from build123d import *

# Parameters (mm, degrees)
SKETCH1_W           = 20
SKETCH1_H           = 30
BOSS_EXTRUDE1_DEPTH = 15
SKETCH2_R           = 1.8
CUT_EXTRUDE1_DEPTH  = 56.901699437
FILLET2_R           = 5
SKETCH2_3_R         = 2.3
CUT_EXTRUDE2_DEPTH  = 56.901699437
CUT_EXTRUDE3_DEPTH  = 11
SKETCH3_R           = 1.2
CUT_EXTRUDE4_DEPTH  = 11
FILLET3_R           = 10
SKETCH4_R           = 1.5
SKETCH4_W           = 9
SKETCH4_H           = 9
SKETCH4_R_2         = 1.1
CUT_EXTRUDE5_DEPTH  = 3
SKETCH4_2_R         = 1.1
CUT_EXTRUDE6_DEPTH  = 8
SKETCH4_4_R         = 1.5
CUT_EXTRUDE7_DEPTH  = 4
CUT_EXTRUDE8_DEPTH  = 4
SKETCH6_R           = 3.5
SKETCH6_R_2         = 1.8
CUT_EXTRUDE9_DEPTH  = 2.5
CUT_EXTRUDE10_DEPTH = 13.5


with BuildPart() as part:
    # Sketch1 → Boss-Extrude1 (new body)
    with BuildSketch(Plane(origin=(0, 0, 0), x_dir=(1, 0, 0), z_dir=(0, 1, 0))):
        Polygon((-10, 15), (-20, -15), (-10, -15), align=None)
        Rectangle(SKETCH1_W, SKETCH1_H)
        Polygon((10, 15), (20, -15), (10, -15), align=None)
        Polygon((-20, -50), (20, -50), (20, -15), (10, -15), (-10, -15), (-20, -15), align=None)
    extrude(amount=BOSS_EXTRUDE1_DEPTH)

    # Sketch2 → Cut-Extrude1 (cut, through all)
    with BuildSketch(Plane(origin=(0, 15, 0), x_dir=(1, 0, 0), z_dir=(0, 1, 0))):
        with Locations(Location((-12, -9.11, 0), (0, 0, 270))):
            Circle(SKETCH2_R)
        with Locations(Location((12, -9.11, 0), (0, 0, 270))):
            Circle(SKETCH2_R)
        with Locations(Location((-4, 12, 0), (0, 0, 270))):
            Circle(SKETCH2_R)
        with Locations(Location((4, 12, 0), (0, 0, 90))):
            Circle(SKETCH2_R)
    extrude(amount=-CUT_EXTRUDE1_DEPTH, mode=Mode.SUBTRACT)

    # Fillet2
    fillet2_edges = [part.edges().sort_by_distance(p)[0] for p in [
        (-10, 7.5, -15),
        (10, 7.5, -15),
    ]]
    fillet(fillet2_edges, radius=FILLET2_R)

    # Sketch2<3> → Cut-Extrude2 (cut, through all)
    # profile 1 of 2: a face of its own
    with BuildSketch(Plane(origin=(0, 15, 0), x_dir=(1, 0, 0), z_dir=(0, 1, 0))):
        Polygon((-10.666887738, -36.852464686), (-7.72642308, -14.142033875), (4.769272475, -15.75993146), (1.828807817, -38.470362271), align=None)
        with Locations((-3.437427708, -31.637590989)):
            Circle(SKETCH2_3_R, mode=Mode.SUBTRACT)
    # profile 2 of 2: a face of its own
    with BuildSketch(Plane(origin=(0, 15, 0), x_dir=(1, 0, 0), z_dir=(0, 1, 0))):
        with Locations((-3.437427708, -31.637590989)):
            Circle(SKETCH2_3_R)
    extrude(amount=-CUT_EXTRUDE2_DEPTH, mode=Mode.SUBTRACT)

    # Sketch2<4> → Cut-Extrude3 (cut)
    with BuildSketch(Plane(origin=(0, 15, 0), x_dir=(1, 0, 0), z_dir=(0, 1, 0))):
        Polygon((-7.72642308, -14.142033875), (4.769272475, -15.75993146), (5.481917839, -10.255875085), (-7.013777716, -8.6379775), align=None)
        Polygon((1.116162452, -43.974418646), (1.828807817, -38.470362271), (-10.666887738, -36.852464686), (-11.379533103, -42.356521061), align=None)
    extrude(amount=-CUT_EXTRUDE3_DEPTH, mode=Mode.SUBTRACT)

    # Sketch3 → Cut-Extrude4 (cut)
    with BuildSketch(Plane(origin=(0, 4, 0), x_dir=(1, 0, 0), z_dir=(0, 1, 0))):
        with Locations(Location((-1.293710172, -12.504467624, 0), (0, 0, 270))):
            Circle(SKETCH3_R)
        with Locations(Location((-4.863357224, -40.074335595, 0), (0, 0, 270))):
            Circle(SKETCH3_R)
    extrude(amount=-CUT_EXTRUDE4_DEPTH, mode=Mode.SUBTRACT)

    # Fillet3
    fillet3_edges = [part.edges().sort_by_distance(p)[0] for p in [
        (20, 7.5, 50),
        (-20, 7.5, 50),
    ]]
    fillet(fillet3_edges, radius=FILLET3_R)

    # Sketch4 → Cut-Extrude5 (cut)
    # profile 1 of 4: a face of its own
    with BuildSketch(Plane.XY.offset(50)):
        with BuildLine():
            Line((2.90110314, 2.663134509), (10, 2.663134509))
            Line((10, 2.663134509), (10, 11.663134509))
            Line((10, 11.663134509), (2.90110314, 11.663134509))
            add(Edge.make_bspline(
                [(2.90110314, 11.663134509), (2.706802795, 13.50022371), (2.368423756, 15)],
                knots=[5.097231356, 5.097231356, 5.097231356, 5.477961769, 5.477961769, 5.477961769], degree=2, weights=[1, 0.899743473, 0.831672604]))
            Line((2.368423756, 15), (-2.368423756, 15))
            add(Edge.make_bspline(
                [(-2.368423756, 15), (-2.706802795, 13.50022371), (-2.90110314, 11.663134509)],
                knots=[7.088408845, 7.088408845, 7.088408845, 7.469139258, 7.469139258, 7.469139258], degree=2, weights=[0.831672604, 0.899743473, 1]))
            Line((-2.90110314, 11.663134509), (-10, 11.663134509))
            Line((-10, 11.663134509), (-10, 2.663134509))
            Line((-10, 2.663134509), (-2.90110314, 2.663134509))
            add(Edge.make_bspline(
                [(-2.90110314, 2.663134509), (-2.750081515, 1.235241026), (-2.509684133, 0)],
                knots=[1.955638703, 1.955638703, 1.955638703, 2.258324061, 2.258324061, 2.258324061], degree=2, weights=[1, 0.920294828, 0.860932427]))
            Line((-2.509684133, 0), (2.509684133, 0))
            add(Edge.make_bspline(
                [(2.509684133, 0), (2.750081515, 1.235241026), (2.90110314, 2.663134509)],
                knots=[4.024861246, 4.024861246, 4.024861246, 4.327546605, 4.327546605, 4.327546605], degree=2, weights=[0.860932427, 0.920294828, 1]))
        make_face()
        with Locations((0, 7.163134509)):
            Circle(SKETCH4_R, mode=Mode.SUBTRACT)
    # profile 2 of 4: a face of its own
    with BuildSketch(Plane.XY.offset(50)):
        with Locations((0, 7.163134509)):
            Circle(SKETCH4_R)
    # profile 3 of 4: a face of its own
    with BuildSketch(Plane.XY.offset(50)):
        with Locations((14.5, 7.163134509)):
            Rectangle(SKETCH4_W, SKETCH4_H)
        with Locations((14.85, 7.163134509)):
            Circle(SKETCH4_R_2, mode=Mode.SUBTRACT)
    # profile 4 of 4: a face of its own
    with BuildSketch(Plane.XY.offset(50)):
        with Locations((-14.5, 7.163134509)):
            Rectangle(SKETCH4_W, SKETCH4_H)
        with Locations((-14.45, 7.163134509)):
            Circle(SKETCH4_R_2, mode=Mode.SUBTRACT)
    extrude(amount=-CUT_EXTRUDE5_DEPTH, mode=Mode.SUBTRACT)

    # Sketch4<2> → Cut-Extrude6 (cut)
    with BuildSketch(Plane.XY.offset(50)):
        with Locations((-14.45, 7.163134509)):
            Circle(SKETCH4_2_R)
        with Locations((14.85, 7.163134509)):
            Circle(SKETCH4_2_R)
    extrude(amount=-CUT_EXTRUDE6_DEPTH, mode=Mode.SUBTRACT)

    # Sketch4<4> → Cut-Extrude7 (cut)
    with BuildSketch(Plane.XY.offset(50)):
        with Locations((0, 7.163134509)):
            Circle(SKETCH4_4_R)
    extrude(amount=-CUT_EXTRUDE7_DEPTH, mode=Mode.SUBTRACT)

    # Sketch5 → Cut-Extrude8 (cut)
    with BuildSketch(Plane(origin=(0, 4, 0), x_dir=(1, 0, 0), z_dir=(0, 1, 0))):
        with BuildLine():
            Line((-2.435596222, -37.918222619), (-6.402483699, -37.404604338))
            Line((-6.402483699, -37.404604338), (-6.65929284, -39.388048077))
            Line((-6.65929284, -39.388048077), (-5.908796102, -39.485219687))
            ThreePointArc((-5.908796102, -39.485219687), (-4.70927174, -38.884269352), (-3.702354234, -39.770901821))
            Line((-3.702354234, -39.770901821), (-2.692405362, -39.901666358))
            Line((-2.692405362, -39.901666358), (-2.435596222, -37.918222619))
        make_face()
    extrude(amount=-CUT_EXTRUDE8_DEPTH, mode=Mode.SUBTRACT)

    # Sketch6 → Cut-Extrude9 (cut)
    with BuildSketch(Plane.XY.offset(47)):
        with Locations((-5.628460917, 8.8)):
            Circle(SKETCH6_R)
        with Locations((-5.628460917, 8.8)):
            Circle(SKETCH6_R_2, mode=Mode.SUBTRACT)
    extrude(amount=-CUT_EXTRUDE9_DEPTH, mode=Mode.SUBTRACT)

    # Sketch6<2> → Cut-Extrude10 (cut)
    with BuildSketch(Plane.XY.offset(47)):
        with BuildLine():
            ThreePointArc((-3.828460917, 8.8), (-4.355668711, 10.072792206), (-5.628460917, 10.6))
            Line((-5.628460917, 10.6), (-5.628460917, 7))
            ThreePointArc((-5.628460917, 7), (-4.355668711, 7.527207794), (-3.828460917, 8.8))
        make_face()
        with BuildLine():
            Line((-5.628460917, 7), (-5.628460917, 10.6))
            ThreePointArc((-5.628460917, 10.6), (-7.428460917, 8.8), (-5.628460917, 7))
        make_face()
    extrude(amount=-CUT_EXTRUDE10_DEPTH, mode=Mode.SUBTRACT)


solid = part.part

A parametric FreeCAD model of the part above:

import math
import FreeCAD as App
import Part
import Sketcher
from FreeCAD import Vector


def edges_at(feature, points):
    """Names of the edges that pass closest to the given points."""
    edges = feature.Shape.Edges
    near = lambda p: min(range(len(edges)), key=lambda i: edges[i].distToShape(Part.Vertex(*p))[0])
    return sorted({f"Edge{near(p) + 1}" for p in points})


def add_polygon(sketch, points):
    """Adds a closed chain of lines whose ends are joined by coincident constraints."""
    first, n = sketch.GeometryCount, len(points)
    for a, b in zip(points, points[1:] + points[:1]):
        sketch.addGeometry(Part.LineSegment(App.Vector(*a, 0), App.Vector(*b, 0)), False)
    for i in range(n):
        sketch.addConstraint(Sketcher.Constraint("Coincident", first + i, 2, first + (i + 1) % n, 1))

doc = App.newDocument("Part")
body = doc.addObject("PartDesign::Body", "Body")

# Sketch on XZ plane
sketch1 = body.newObject("Sketcher::SketchObject", "Sketch")
sketch1.AttachmentSupport = (doc.getObject("XZ_Plane"), [""])
sketch1.MapMode = "FlatFace"
add_polygon(sketch1, [(-10, -15), (-20, 15), (-20, 50), (20, 50), (20, 15), (10, -15)])  # lines 0-5
sketch1.addConstraint([
    Sketcher.Constraint("Vertical", 1),
    Sketcher.Constraint("Horizontal", 2),
    Sketcher.Constraint("Vertical", 3),
    Sketcher.Constraint("Horizontal", 5),
    Sketcher.Constraint("Symmetric", 0, 2, 3, 2, -2),
    Sketcher.Constraint("Equal", 0, 4),
    Sketcher.Constraint("DistanceX", 2, 1, 2, 2, 40.0),
    Sketcher.Constraint("DistanceX", 5, 2, 5, 1, 20.0),
    Sketcher.Constraint("DistanceY", 1, 1, 1, 2, 35.0),
    Sketcher.Constraint("DistanceY", -1, 1, 0, 2, 15.0),
    Sketcher.Constraint("DistanceY", 4, 2, -1, 1, 15.0),
])
pad1 = body.newObject("PartDesign::Pad", "Pad")
pad1.Profile = sketch1
pad1.Length = 15
pad1.Reversed = True

# Sketch on XZ plane
sketch2 = body.newObject("Sketcher::SketchObject", "Sketch001")
sketch2.AttachmentSupport = (doc.getObject("XZ_Plane"), [""])
sketch2.MapMode = "FlatFace"
sketch2.AttachmentOffset = App.Placement(Vector(0, 0, -15), App.Rotation())
sketch2.addGeometry([
    Part.Circle(Vector(-12, 9.11, 0), Vector(0, 0, 1), 1.8),
    Part.Circle(Vector(12, 9.11, 0), Vector(0, 0, 1), 1.8),
    Part.Circle(Vector(-4, -12, 0), Vector(0, 0, 1), 1.8),
    Part.Circle(Vector(4, -12, 0), Vector(0, 0, 1), 1.8),
], False)
sketch2.addConstraint([
    Sketcher.Constraint("Equal", 0, 1),
    Sketcher.Constraint("Equal", 1, 2),
    Sketcher.Constraint("Equal", 2, 3),
    Sketcher.Constraint("Symmetric", 0, 3, 1, 3, -2),
    Sketcher.Constraint("Symmetric", 2, 3, 3, 3, -2),
    Sketcher.Constraint("Diameter", 0, 3.6),
    Sketcher.Constraint("DistanceX", 0, 3, -1, 1, 12.0),
    Sketcher.Constraint("DistanceX", 2, 3, -1, 1, 4.0),
    Sketcher.Constraint("DistanceY", 2, 3, -1, 1, 12.0),
    Sketcher.Constraint("DistanceY", -1, 1, 0, 3, 9.11),
])
pocket1 = body.newObject("PartDesign::Pocket", "Pocket")
pocket1.Profile = sketch2
pocket1.Type = "ThroughAll"
pocket1.Reversed = True
doc.recompute()

fillet = body.newObject("PartDesign::Fillet", "Fillet")
fillet.Base = (pocket1, edges_at(pocket1, [(-10, 7.5, -15), (10, 7.5, -15)]))
fillet.Radius = 5

# Sketch on XZ plane
sketch3 = body.newObject("Sketcher::SketchObject", "Sketch002")
sketch3.AttachmentSupport = (doc.getObject("XZ_Plane"), [""])
sketch3.MapMode = "FlatFace"
sketch3.AttachmentOffset = App.Placement(Vector(0, 0, -15), App.Rotation())
add_polygon(sketch3, [(-7.726423, 14.142034), (-10.666888, 36.852465), (1.828808, 38.470362), (4.769272, 15.759931)])  # lines 0-3
sketch3.addConstraint([
    Sketcher.Constraint("Perpendicular", 0, 1),
    Sketcher.Constraint("Perpendicular", 1, 2),
    Sketcher.Constraint("Perpendicular", 2, 3),
    Sketcher.Constraint("Distance", 0, 22.9),
    Sketcher.Constraint("Distance", 1, 12.6),
    Sketcher.Constraint("DistanceY", -1, 1, 2, 2, 15.759931),
    Sketcher.Constraint("DistanceY", 2, 2, 1, 2, 22.710431),
    Sketcher.Constraint("DistanceX", 0, 2, -1, 1, 10.666888),
])
pocket2 = body.newObject("PartDesign::Pocket", "Pocket001")
pocket2.Profile = sketch3
pocket2.Length = 56.901699
pocket2.Reversed = True

# Sketch on XZ plane
sketch4 = body.newObject("Sketcher::SketchObject", "Sketch003")
sketch4.AttachmentSupport = (doc.getObject("XZ_Plane"), [""])
sketch4.MapMode = "FlatFace"
sketch4.AttachmentOffset = App.Placement(Vector(0, 0, -15), App.Rotation())
add_polygon(sketch4, [(-7.726423, 14.142034), (4.769272, 15.759931), (5.481918, 10.255875), (-7.013778, 8.637977)])  # lines 0-3
add_polygon(sketch4, [(1.116162, 43.974419), (1.828808, 38.470362), (-10.666888, 36.852465), (-11.379533, 42.356521)])  # lines 4-7
sketch4.addConstraint([
    Sketcher.Constraint("Perpendicular", 0, 1),
    Sketcher.Constraint("Perpendicular", 1, 2),
    Sketcher.Constraint("Perpendicular", 2, 3),
    Sketcher.Constraint("Parallel", 3, 4),
    Sketcher.Constraint("Perpendicular", 4, 5),
    Sketcher.Constraint("Perpendicular", 5, 6),
    Sketcher.Constraint("Perpendicular", 6, 7),
    Sketcher.Constraint("Equal", 3, 4),
    Sketcher.Constraint("Equal", 2, 5),
    Sketcher.Constraint("Distance", 0, 12.6),
    Sketcher.Constraint("Distance", 1, 5.55),
    Sketcher.Constraint("DistanceY", -1, 1, 0, 2, 15.759931),
    Sketcher.Constraint("DistanceY", -1, 1, 6, 2, 42.356521),
    Sketcher.Constraint("DistanceY", -1, 1, 7, 2, 43.974419),
    Sketcher.Constraint("DistanceX", 3, 2, 4, 2, 9.555231),
    Sketcher.Constraint("DistanceX", -1, 1, 0, 2, 4.769272),
])
pocket3 = body.newObject("PartDesign::Pocket", "Pocket002")
pocket3.Profile = sketch4
pocket3.Length = 11
pocket3.Reversed = True

# Sketch on XZ plane
sketch5 = body.newObject("Sketcher::SketchObject", "Sketch004")
sketch5.AttachmentSupport = (doc.getObject("XZ_Plane"), [""])
sketch5.MapMode = "FlatFace"
sketch5.AttachmentOffset = App.Placement(Vector(0, 0, -4), App.Rotation())
sketch5.addGeometry([
    Part.Circle(Vector(-1.29371, 12.504468, 0), Vector(0, 0, 1), 1.2),
    Part.Circle(Vector(-4.863357, 40.074336, 0), Vector(0, 0, 1), 1.2),
], False)
sketch5.addConstraint([
    Sketcher.Constraint("Equal", 0, 1),
    Sketcher.Constraint("Diameter", 0, 2.4),
    Sketcher.Constraint("DistanceX", 0, 3, -1, 1, 1.29371),
    Sketcher.Constraint("DistanceY", -1, 1, 0, 3, 12.504468),
    Sketcher.Constraint("DistanceX", 1, 3, -1, 1, 4.863357),
    Sketcher.Constraint("DistanceY", -1, 1, 1, 3, 40.074336),
])
pocket4 = body.newObject("PartDesign::Pocket", "Pocket003")
pocket4.Profile = sketch5
pocket4.Length = 11
pocket4.Reversed = True
doc.recompute()

fillet2 = body.newObject("PartDesign::Fillet", "Fillet001")
fillet2.Base = (pocket4, edges_at(pocket4, [(20, 7.5, 50), (-20, 7.5, 50)]))
fillet2.Radius = 10

# Sketch on XY plane
sketch6 = body.newObject("Sketcher::SketchObject", "Sketch005")
sketch6.AttachmentSupport = (doc.getObject("XY_Plane"), [""])
sketch6.MapMode = "FlatFace"
sketch6.AttachmentOffset = App.Placement(Vector(0, 0, 50), App.Rotation())
sketch6.addGeometry([
    Part.LineSegment(Vector(2.901103, 2.663135, 0), Vector(19, 2.663135, 0)),  # 0
    Part.LineSegment(Vector(19, 2.663135, 0), Vector(19, 11.663135, 0)),  # 1
    Part.LineSegment(Vector(19, 11.663135, 0), Vector(2.901103, 11.663135, 0)),  # 2
    Part.BSplineCurve([Vector(2.901103, 11.663135, 0), Vector(2.706803, 13.500224, 0), Vector(2.368424, 15, 0)], [3, 3], [5.097231356, 5.477961769], False, 2, [1, 0.899743473, 0.831672604], False),  # 3
    Part.LineSegment(Vector(2.368424, 15, 0), Vector(-2.368424, 15, 0)),  # 4
    Part.BSplineCurve([Vector(-2.368424, 15, 0), Vector(-2.706803, 13.500224, 0), Vector(-2.901103, 11.663135, 0)], [3, 3], [7.088408845, 7.469139258], False, 2, [0.831672604, 0.899743473, 1], False),  # 5
    Part.LineSegment(Vector(-2.901103, 11.663135, 0), Vector(-19, 11.663135, 0)),  # 6
    Part.LineSegment(Vector(-19, 11.663135, 0), Vector(-19, 2.663135, 0)),  # 7
    Part.LineSegment(Vector(-19, 2.663135, 0), Vector(-2.901103, 2.663135, 0)),  # 8
    Part.BSplineCurve([Vector(-2.901103, 2.663135, 0), Vector(-2.750082, 1.235241, 0), Vector(-2.509684, 0, 0)], [3, 3], [1.955638703, 2.258324061], False, 2, [1, 0.920294828, 0.860932427], False),  # 9
    Part.LineSegment(Vector(-2.509684, 0, 0), Vector(2.509684, 0, 0)),  # 10
    Part.BSplineCurve([Vector(2.509684, 0, 0), Vector(2.750082, 1.235241, 0), Vector(2.901103, 2.663135, 0)], [3, 3], [4.024861246, 4.327546605], False, 2, [0.860932427, 0.920294828, 1], False),  # 11
    Part.Circle(Vector(14.85, 7.163135, 0), Vector(0, 0, 1), 1.1),  # 12
    Part.Circle(Vector(-14.45, 7.163135, 0), Vector(0, 0, 1), 1.1),  # 13
], False)
sketch6.addConstraint([
    Sketcher.Constraint("Block", 3),
    Sketcher.Constraint("Block", 5),
    Sketcher.Constraint("Block", 9),
    Sketcher.Constraint("Block", 11),
    Sketcher.Constraint("Coincident", 0, 2, 1, 1),
    Sketcher.Constraint("Coincident", 1, 2, 2, 1),
    Sketcher.Constraint("Coincident", 2, 2, 3, 1),
    Sketcher.Constraint("Coincident", 3, 2, 4, 1),
    Sketcher.Constraint("Coincident", 4, 2, 5, 1),
    Sketcher.Constraint("Coincident", 5, 2, 6, 1),
    Sketcher.Constraint("Coincident", 6, 2, 7, 1),
    Sketcher.Constraint("Coincident", 7, 2, 8, 1),
    Sketcher.Constraint("Coincident", 8, 2, 9, 1),
    Sketcher.Constraint("Coincident", 9, 2, 10, 1),
    Sketcher.Constraint("Coincident", 10, 2, 11, 1),
    Sketcher.Constraint("Coincident", 11, 2, 0, 1),
    Sketcher.Constraint("Horizontal", 0),
    Sketcher.Constraint("Vertical", 1),
    Sketcher.Constraint("Horizontal", 2),
    Sketcher.Constraint("Horizontal", 6),
    Sketcher.Constraint("Vertical", 7),
    Sketcher.Constraint("Horizontal", 8),
    Sketcher.Constraint("Equal", 12, 13),
    Sketcher.Constraint("Horizontal", 12, 3, 13, 3),
    Sketcher.Constraint("Equal", 2, 6),
    Sketcher.Constraint("Diameter", 12, 2.2),
    Sketcher.Constraint("DistanceX", -1, 1, 0, 2, 19.0),
    Sketcher.Constraint("DistanceX", 13, 3, 12, 3, 29.3),
    Sketcher.Constraint("DistanceY", 0, 2, 12, 3, 4.5),
    Sketcher.Constraint("DistanceX", -1, 1, 12, 3, 14.85),
])
pocket5 = body.newObject("PartDesign::Pocket", "Pocket004")
pocket5.Profile = sketch6
pocket5.Length = 3

# Sketch on XY plane
sketch7 = body.newObject("Sketcher::SketchObject", "Sketch006")
sketch7.AttachmentSupport = (doc.getObject("XY_Plane"), [""])
sketch7.MapMode = "FlatFace"
sketch7.AttachmentOffset = App.Placement(Vector(0, 0, 50), App.Rotation())
sketch7.addGeometry([
    Part.Circle(Vector(-14.45, 7.163135, 0), Vector(0, 0, 1), 1.1),
    Part.Circle(Vector(14.85, 7.163135, 0), Vector(0, 0, 1), 1.1),
], False)
sketch7.addConstraint([
    Sketcher.Constraint("Equal", 0, 1),
    Sketcher.Constraint("Horizontal", 0, 3, 1, 3),
    Sketcher.Constraint("Diameter", 0, 2.2),
    Sketcher.Constraint("DistanceX", 0, 3, 1, 3, 29.3),
    Sketcher.Constraint("DistanceX", 0, 3, -1, 1, 14.45),
    Sketcher.Constraint("DistanceY", -1, 1, 0, 3, 7.163135),
])
pocket6 = body.newObject("PartDesign::Pocket", "Pocket005")
pocket6.Profile = sketch7
pocket6.Length = 8

# Sketch on XY plane
sketch8 = body.newObject("Sketcher::SketchObject", "Sketch007")
sketch8.AttachmentSupport = (doc.getObject("XY_Plane"), [""])
sketch8.MapMode = "FlatFace"
sketch8.AttachmentOffset = App.Placement(Vector(0, 0, 50), App.Rotation())
sketch8.addGeometry(Part.Circle(Vector(0, 7.163135, 0), Vector(0, 0, 1), 1.5), False)
sketch8.addConstraint([
    Sketcher.Constraint("PointOnObject", 0, 3, -2),
    Sketcher.Constraint("Diameter", 0, 3.0),
    Sketcher.Constraint("DistanceY", -1, 1, 0, 3, 7.163135),
])
pocket7 = body.newObject("PartDesign::Pocket", "Pocket006")
pocket7.Profile = sketch8
pocket7.Length = 4

# Sketch on XZ plane
sketch9 = body.newObject("Sketcher::SketchObject", "Sketch008")
sketch9.AttachmentSupport = (doc.getObject("XZ_Plane"), [""])
sketch9.MapMode = "FlatFace"
sketch9.AttachmentOffset = App.Placement(Vector(0, 0, -4), App.Rotation())
sketch9.addGeometry([
    Part.LineSegment(Vector(-2.435596, 37.918223, 0), Vector(-6.402484, 37.404604, 0)),  # 0
    Part.LineSegment(Vector(-6.402484, 37.404604, 0), Vector(-6.659293, 39.388048, 0)),  # 1
    Part.LineSegment(Vector(-6.659293, 39.388048, 0), Vector(-5.908796, 39.48522, 0)),  # 2
    Part.ArcOfCircle(Part.Circle(Vector(-4.863357, 40.074336, 0), Vector(0, 0, 1), 1.2), math.radians(-150.598279), math.radians(-14.646905)),  # 3
    Part.LineSegment(Vector(-3.702354, 39.770902, 0), Vector(-2.692405, 39.901666, 0)),  # 4
    Part.LineSegment(Vector(-2.692405, 39.901666, 0), Vector(-2.435596, 37.918223, 0)),  # 5
], False)
sketch9.addConstraint([
    Sketcher.Constraint("Coincident", 0, 2, 1, 1),
    Sketcher.Constraint("Coincident", 1, 2, 2, 1),
    Sketcher.Constraint("Coincident", 2, 2, 3, 1),
    Sketcher.Constraint("Coincident", 3, 2, 4, 1),
    Sketcher.Constraint("Coincident", 4, 2, 5, 1),
    Sketcher.Constraint("Coincident", 5, 2, 0, 1),
    Sketcher.Constraint("Perpendicular", 0, 1),
    Sketcher.Constraint("Perpendicular", 1, 2),
    Sketcher.Constraint("Parallel", 2, 4),
    Sketcher.Constraint("Perpendicular", 4, 5),
    Sketcher.Constraint("Equal", 1, 5),
    Sketcher.Constraint("Radius", 3, 1.2),
    Sketcher.Constraint("Distance", 0, 4.0),
    Sketcher.Constraint("Distance", 1, 2.0),
    Sketcher.Constraint("DistanceY", -1, 1, 3, 2, 39.770902),
    Sketcher.Constraint("DistanceX", 2, 2, 5, 2, 3.4732),
    Sketcher.Constraint("Distance", 2, 0.756761),
    Sketcher.Constraint("Distance", 4, 1.018379),
    Sketcher.Constraint("DistanceX", 3, 3, -1, 1, 4.863357),
])
pocket8 = body.newObject("PartDesign::Pocket", "Pocket007")
pocket8.Profile = sketch9
pocket8.Length = 4
pocket8.Reversed = True

# Sketch on XY plane
sketch10 = body.newObject("Sketcher::SketchObject", "Sketch009")
sketch10.AttachmentSupport = (doc.getObject("XY_Plane"), [""])
sketch10.MapMode = "FlatFace"
sketch10.AttachmentOffset = App.Placement(Vector(0, 0, 47), App.Rotation())
sketch10.addGeometry([
    Part.Circle(Vector(-5.628461, 8.8, 0), Vector(0, 0, 1), 3.5),
    Part.Circle(Vector(-5.628461, 8.8, 0), Vector(0, 0, 1), 1.8),
], False)
sketch10.addConstraint([
    Sketcher.Constraint("Coincident", 1, 3, 0, 3),
    Sketcher.Constraint("Diameter", 0, 7.0),
    Sketcher.Constraint("Diameter", 1, 3.6),
    Sketcher.Constraint("DistanceY", -1, 1, 0, 3, 8.8),
    Sketcher.Constraint("DistanceX", 0, 3, -1, 1, 5.628461),
])
pocket9 = body.newObject("PartDesign::Pocket", "Pocket008")
pocket9.Profile = sketch10
pocket9.Length = 2.5

# Sketch on XY plane
sketch11 = body.newObject("Sketcher::SketchObject", "Sketch010")
sketch11.AttachmentSupport = (doc.getObject("XY_Plane"), [""])
sketch11.MapMode = "FlatFace"
sketch11.AttachmentOffset = App.Placement(Vector(0, 0, 47), App.Rotation())
sketch11.addGeometry([
    Part.ArcOfCircle(Part.Circle(Vector(-5.628461, 8.8, 0), Vector(0, 0, 1), 1.8), math.radians(0), math.radians(90)),
    Part.ArcOfCircle(Part.Circle(Vector(-5.628461, 8.8, 0), Vector(0, 0, 1), 1.8), math.radians(90), math.radians(270)),
    Part.ArcOfCircle(Part.Circle(Vector(-5.628461, 8.8, 0), Vector(0, 0, 1), 1.8), math.radians(-90), math.radians(0)),
], False)
sketch11.addConstraint([
    Sketcher.Constraint("Tangent", 0, 2, 1, 1),
    Sketcher.Constraint("Tangent", 1, 2, 2, 1),
    Sketcher.Constraint("Tangent", 2, 2, 0, 1),
    Sketcher.Constraint("Horizontal", 1, 3, 2, 2),
    Sketcher.Constraint("Vertical", 2, 3, 0, 2),
    Sketcher.Constraint("Vertical", 0, 2, 1, 2),
    Sketcher.Constraint("Radius", 0, 1.8),
    Sketcher.Constraint("DistanceY", -1, 1, 1, 2, 7.0),
    Sketcher.Constraint("DistanceX", 0, 3, -1, 1, 5.628461),
])
pocket10 = body.newObject("PartDesign::Pocket", "Pocket009")
pocket10.Profile = sketch11
pocket10.Length = 13.5

doc.recompute()
